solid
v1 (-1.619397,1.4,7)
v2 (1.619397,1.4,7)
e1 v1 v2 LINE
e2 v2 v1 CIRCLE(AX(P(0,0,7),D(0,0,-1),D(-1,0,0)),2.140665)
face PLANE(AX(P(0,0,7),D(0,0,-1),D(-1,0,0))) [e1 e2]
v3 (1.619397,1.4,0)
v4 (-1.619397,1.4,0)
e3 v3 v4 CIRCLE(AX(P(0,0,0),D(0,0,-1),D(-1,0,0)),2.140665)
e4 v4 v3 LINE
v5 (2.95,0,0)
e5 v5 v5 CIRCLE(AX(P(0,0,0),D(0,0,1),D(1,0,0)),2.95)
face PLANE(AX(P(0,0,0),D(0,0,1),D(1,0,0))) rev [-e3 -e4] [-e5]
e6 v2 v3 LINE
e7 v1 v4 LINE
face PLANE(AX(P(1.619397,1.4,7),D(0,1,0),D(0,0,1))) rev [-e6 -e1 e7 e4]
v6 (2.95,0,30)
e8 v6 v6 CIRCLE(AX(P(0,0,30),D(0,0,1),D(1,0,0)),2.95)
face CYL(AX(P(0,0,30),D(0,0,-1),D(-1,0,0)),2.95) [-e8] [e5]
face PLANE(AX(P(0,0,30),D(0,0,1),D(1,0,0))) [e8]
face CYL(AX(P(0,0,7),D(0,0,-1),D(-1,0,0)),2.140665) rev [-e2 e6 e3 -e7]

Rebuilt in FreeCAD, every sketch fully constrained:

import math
import FreeCAD as App
import Part
import Sketcher
Q = App.Units.Quantity

doc = App.newDocument("Part")
params = doc.addObject("Spreadsheet::Sheet", "Params")
for row, (alias, value) in enumerate([
    ("sketch1_diameter", "5.9 mm"),
    ("pad1_length", "30 mm"),
    ("pocket1_length", "7 mm"),
], start=1):
    params.set(f"A{row}", alias)
    params.set(f"B{row}", "=" + value)
    params.setAlias(f"B{row}", alias)

body = doc.addObject("PartDesign::Body", "Body")

# Sketch on XY plane
sketch1 = doc.addObject("Sketcher::SketchObject", "Sketch")
body.addObject(sketch1)
sketch1.AttachmentSupport = (doc.XY_Plane, [""])
sketch1.MapMode = "FlatFace"
sketch1.addGeometry(Part.Circle(App.Vector(0, 0, 0), App.Vector(0, 0, 1), 2.95), False)
sketch1.addConstraint([
    Sketcher.Constraint("Coincident", 0, 3, -1, 1),
    Sketcher.Constraint("Diameter", 0, Q("5.9 mm")),
])
sketch1.setExpression("Constraints[1]", "Params.sketch1_diameter")
pad1 = doc.addObject("PartDesign::Pad", "Pad")
body.addObject(pad1)
pad1.Profile = sketch1
pad1.setExpression("Length", "Params.pad1_length")

# Sketch on XY plane
sketch2 = doc.addObject("Sketcher::SketchObject", "Sketch001")
body.addObject(sketch2)
sketch2.AttachmentSupport = (doc.XY_Plane, [""])
sketch2.MapMode = "FlatFace"
sketch2.addGeometry([
    Part.LineSegment(App.Vector(-1.619397, 1.4, 0), App.Vector(1.619397, 1.4, 0)),
    Part.ArcOfCircle(Part.Circle(App.Vector(0, 0, 0), App.Vector(0, 0, 1), 2.140665), math.radians(139.155958), math.radians(400.844042)),
], False)
sketch2.addConstraint([
    Sketcher.Constraint("Coincident", 0, 1, 1, 1),
    Sketcher.Constraint("Coincident", 1, 2, 0, 2),
    Sketcher.Constraint("Horizontal", 0),
    Sketcher.Constraint("Coincident", 1, 3, -1, 1),
    Sketcher.Constraint("DistanceY", -1, 1, 0, 1, Q("1.4 mm")),
    Sketcher.Constraint("Radius", 1, Q("2.140665 mm")),
])
pocket1 = doc.addObject("PartDesign::Pocket", "Pocket")
body.addObject(pocket1)
pocket1.Profile = sketch2
pocket1.setExpression("Length", "Params.pocket1_length")
pocket1.Reversed = True

doc.recompute()
